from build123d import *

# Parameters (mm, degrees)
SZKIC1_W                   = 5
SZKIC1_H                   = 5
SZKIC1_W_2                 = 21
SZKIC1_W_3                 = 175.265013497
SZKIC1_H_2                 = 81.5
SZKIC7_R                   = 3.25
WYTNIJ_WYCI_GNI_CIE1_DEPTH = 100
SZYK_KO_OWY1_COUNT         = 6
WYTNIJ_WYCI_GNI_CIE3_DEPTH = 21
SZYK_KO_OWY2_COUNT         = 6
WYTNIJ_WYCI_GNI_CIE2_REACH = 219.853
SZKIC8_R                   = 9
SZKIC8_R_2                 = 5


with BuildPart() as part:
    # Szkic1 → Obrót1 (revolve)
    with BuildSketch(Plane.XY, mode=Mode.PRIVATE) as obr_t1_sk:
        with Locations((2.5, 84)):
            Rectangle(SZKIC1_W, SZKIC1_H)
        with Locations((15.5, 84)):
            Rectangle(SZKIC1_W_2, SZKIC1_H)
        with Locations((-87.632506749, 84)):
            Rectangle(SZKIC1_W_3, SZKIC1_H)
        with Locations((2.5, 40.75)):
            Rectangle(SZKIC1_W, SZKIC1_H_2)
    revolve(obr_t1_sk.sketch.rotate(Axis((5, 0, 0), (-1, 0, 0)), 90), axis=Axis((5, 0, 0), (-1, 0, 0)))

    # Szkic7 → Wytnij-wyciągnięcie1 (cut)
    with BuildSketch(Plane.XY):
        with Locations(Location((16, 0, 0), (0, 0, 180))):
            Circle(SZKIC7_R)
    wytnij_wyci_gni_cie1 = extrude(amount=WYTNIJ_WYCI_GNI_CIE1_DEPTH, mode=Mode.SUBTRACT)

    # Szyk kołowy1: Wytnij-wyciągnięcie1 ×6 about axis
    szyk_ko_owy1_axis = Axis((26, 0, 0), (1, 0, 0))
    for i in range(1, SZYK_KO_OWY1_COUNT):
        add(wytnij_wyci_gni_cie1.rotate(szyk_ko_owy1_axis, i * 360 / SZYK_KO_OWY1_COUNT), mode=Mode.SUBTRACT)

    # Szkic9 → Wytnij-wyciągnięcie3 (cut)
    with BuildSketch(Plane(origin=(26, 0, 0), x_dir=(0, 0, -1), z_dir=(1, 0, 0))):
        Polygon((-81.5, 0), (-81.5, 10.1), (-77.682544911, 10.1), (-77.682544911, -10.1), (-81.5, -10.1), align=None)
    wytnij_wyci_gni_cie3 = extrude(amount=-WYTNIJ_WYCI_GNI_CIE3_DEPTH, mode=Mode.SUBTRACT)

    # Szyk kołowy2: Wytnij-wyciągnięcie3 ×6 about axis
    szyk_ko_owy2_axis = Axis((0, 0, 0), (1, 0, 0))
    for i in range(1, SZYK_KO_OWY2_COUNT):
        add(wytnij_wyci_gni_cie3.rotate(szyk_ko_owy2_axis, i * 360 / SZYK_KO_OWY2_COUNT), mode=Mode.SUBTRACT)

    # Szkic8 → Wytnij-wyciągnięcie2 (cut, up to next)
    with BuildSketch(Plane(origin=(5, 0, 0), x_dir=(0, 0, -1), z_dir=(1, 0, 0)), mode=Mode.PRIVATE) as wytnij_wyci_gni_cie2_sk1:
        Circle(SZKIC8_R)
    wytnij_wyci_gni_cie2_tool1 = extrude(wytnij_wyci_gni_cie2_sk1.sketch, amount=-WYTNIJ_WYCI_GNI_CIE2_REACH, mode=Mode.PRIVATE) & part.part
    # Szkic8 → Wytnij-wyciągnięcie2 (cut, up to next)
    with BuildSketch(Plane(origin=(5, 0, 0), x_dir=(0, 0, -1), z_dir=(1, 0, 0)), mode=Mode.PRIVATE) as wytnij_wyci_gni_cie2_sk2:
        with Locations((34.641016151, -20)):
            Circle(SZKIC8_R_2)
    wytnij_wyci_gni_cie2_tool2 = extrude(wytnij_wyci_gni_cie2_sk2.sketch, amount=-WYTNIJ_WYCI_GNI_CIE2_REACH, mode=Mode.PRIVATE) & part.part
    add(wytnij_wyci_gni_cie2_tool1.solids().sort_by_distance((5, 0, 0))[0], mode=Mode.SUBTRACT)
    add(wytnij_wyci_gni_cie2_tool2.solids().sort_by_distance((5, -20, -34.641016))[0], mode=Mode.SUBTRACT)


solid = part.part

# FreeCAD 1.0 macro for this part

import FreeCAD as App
import Part
import Sketcher
from FreeCAD import Vector
Q = App.Units.Quantity


def add_polygon(sketch, points):
    """Adds a closed chain of lines whose ends are joined by coincident constraints."""
    first, n = sketch.GeometryCount, len(points)
    for a, b in zip(points, points[1:] + points[:1]):
        sketch.addGeometry(Part.LineSegment(App.Vector(*a, 0), App.Vector(*b, 0)), False)
    for i in range(n):
        sketch.addConstraint(Sketcher.Constraint("Coincident", first + i, 2, first + (i + 1) % n, 1))

doc = App.newDocument("Part")
body = doc.addObject("PartDesign::Body", "Body")

# Sketch on XY plane
sketch1 = doc.addObject("Sketcher::SketchObject", "Sketch")
body.addObject(sketch1)
sketch1.AttachmentSupport = (doc.XY_Plane, [""])
sketch1.MapMode = "FlatFace"
add_polygon(sketch1, [(26, 82), (26, 86), (-175, 86), (-175, 82), (0, 82), (0, 0), (5, 0), (5, 82)])  # lines 0-7
sketch1.addConstraint([
    Sketcher.Constraint("Vertical", 0),
    Sketcher.Constraint("Horizontal", 1),
    Sketcher.Constraint("Vertical", 2),
    Sketcher.Constraint("Horizontal", 3),
    Sketcher.Constraint("Vertical", 4),
    Sketcher.Constraint("Horizontal", 5),
    Sketcher.Constraint("Vertical", 6),
    Sketcher.Constraint("Horizontal", 7),
    Sketcher.Constraint("Coincident", 4, 2, -1, 1),
    Sketcher.Constraint("Horizontal", 3, 2, 6, 2),
    Sketcher.Constraint("Equal", 5, 0),
    Sketcher.Constraint("DistanceX", 5, 1, 5, 2, Q("5 mm")),
    Sketcher.Constraint("DistanceX", 7, 1, 7, 2, Q("21 mm")),
    Sketcher.Constraint("DistanceY", 4, 2, 4, 1, Q("81.5 mm")),
    Sketcher.Constraint("DistanceX", 1, 2, 1, 1, Q("201.265013 mm")),
])
revolution = doc.addObject("PartDesign::Revolution", "Revolution")
body.addObject(revolution)
revolution.Profile = sketch1
revolution.ReferenceAxis = (sketch1, ["H_Axis"])
revolution.Angle = 360

# Sketch on XY plane
sketch2 = doc.addObject("Sketcher::SketchObject", "Sketch001")
body.addObject(sketch2)
sketch2.AttachmentSupport = (doc.XY_Plane, [""])
sketch2.MapMode = "FlatFace"
sketch2.addGeometry(Part.Circle(Vector(16, 0, 0), Vector(0, 0, 1), 3.2), False)
sketch2.addConstraint([
    Sketcher.Constraint("PointOnObject", 0, 3, -1),
    Sketcher.Constraint("Diameter", 0, Q("6.5 mm")),
    Sketcher.Constraint("DistanceX", -1, 1, 0, 3, Q("16 mm")),
])
pocket1 = doc.addObject("PartDesign::Pocket", "Pocket")
body.addObject(pocket1)
pocket1.Profile = sketch2
pocket1.Length = 100
pocket1.Reversed = True
doc.recompute()

polarpattern = doc.addObject("PartDesign::PolarPattern", "PolarPattern")
body.addObject(polarpattern)
polarpattern.Originals = [pocket1]
polarpattern.Axis = (doc.X_Axis, [""])
polarpattern.Angle = 360
polarpattern.Occurrences = 6
body.Tip = polarpattern

# Sketch on YZ plane
sketch3 = doc.addObject("Sketcher::SketchObject", "Sketch002")
body.addObject(sketch3)
sketch3.AttachmentSupport = (doc.YZ_Plane, [""])
sketch3.MapMode = "FlatFace"
sketch3.AttachmentOffset = App.Placement(Vector(0, 0, 26), App.Rotation())
add_polygon(sketch3, [(10.1, 81.5), (-10.1, 81.5), (-10.1, 77.7), (10.1, 77.7)])  # lines 0-3
sketch3.addConstraint([
    Sketcher.Constraint("Horizontal", 0),
    Sketcher.Constraint("Vertical", 1),
    Sketcher.Constraint("Horizontal", 2),
    Sketcher.Constraint("Vertical", 3),
    Sketcher.Constraint("DistanceX", 0, 2, 0, 1, Q("20.2 mm")),
    Sketcher.Constraint("DistanceX", 0, 2, -1, 1, Q("10.1 mm")),
    Sketcher.Constraint("DistanceY", -1, 1, 0, 2, Q("81.5 mm")),
    Sketcher.Constraint("DistanceY", 1, 2, 1, 1, Q("3.817455 mm")),
])
pocket2 = doc.addObject("PartDesign::Pocket", "Pocket001")
body.addObject(pocket2)
pocket2.Profile = sketch3
pocket2.Length = 21
doc.recompute()

polarpattern2 = doc.addObject("PartDesign::PolarPattern", "PolarPattern001")
body.addObject(polarpattern2)
polarpattern2.Originals = [pocket2]
polarpattern2.Axis = (doc.X_Axis, [""])
polarpattern2.Angle = 360
polarpattern2.Occurrences = 6
body.Tip = polarpattern2

# Sketch on YZ plane
sketch4 = doc.addObject("Sketcher::SketchObject", "Sketch003")
body.addObject(sketch4)
sketch4.AttachmentSupport = (doc.YZ_Plane, [""])
sketch4.MapMode = "FlatFace"
sketch4.AttachmentOffset = App.Placement(Vector(0, 0, 5), App.Rotation())
sketch4.addGeometry(Part.Circle(Vector(0, 0, 0), Vector(0, 0, 1), 9), False)
sketch4.addConstraint([
    Sketcher.Constraint("Coincident", 0, 3, -1, 1),
    Sketcher.Constraint("Diameter", 0, Q("18 mm")),
])
pocket3 = doc.addObject("PartDesign::Pocket", "Pocket002")
body.addObject(pocket3)
pocket3.Profile = sketch4
pocket3.Type = "UpToFirst"

# Sketch on YZ plane
sketch5 = doc.addObject("Sketcher::SketchObject", "Sketch004")
body.addObject(sketch5)
sketch5.AttachmentSupport = (doc.YZ_Plane, [""])
sketch5.MapMode = "FlatFace"
sketch5.AttachmentOffset = App.Placement(Vector(0, 0, 5), App.Rotation())
sketch5.addGeometry(Part.Circle(Vector(-20, -35, 0), Vector(0, 0, 1), 5), False)
sketch5.addConstraint([
    Sketcher.Constraint("Diameter", 0, Q("10 mm")),
    Sketcher.Constraint("DistanceX", 0, 3, -1, 1, Q("20 mm")),
    Sketcher.Constraint("DistanceY", 0, 3, -1, 1, Q("34.641016 mm")),
])
pocket4 = doc.addObject("PartDesign::Pocket", "Pocket003")
body.addObject(pocket4)
pocket4.Profile = sketch5
pocket4.Type = "UpToFirst"

doc.recompute()
